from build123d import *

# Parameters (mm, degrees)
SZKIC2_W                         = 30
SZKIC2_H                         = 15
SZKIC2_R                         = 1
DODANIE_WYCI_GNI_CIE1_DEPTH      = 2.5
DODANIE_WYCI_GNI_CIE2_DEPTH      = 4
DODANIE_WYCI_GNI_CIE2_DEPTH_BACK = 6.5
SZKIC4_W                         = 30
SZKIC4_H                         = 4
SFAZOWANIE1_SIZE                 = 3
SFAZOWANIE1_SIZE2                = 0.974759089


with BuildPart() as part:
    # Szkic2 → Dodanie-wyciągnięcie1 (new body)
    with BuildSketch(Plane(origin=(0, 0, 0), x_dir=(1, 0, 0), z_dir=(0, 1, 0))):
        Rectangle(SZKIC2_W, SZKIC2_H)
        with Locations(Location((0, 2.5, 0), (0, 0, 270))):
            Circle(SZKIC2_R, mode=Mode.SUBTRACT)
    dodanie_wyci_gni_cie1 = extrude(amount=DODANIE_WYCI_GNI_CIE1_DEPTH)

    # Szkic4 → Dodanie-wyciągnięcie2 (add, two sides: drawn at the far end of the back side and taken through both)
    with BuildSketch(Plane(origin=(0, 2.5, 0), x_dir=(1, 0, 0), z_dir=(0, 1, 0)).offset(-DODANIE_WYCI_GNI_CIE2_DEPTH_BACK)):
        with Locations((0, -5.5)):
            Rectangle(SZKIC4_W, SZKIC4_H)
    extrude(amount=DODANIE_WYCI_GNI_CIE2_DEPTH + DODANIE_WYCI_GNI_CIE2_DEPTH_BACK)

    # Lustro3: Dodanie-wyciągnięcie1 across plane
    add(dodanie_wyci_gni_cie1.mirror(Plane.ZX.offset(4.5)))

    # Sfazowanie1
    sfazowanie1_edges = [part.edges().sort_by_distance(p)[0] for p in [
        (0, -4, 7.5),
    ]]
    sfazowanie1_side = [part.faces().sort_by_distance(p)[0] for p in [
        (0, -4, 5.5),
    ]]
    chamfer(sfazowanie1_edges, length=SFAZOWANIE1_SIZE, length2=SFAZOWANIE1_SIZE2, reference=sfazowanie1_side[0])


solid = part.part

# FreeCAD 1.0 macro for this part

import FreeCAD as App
import Part
import Sketcher
Q = App.Units.Quantity


def edges_at(feature, points):
    """Names of the edges that pass closest to the given points."""
    edges = feature.Shape.Edges
    near = lambda p: min(range(len(edges)), key=lambda i: edges[i].distToShape(Part.Vertex(*p))[0])
    return sorted({f"Edge{near(p) + 1}" for p in points})

doc = App.newDocument("Part")
body = doc.addObject("PartDesign::Body", "Body")

# Sketch on XZ plane
sketch1 = body.newObject("Sketcher::SketchObject", "Sketch")
sketch1.AttachmentSupport = (doc.getObject("XZ_Plane"), [""])
sketch1.MapMode = "FlatFace"
sketch1.addGeometry([
    Part.LineSegment(App.Vector(-15, -7.5, 0), App.Vector(-15, 7.5, 0)),  # 0
    Part.LineSegment(App.Vector(-15, 7.5, 0), App.Vector(15, 7.5, 0)),  # 1
    Part.LineSegment(App.Vector(15, 7.5, 0), App.Vector(15, -7.5, 0)),  # 2
    Part.LineSegment(App.Vector(15, -7.5, 0), App.Vector(-15, -7.5, 0)),  # 3
    Part.Circle(App.Vector(0, -2.5, 0), App.Vector(0, 0, 1), 1),  # 4
], False)
sketch1.addConstraint([
    Sketcher.Constraint("Coincident", 0, 2, 1, 1),
    Sketcher.Constraint("Coincident", 1, 2, 2, 1),
    Sketcher.Constraint("Coincident", 2, 2, 3, 1),
    Sketcher.Constraint("Coincident", 3, 2, 0, 1),
    Sketcher.Constraint("Vertical", 0),
    Sketcher.Constraint("Horizontal", 1),
    Sketcher.Constraint("Vertical", 2),
    Sketcher.Constraint("Horizontal", 3),
    Sketcher.Constraint("Symmetric", 0, 2, 2, 2, -1, 1),
    Sketcher.Constraint("PointOnObject", 4, 3, -2),
    Sketcher.Constraint("Diameter", 4, Q("2 mm")),
    Sketcher.Constraint("DistanceX", 1, 1, 1, 2, Q("30 mm")),
    Sketcher.Constraint("DistanceY", 0, 1, 0, 2, Q("15 mm")),
    Sketcher.Constraint("DistanceY", 4, 3, 0, 2, Q("10 mm")),
])
pad1 = body.newObject("PartDesign::Pad", "Pad")
pad1.Profile = sketch1
pad1.Length = 2.5
pad1.Reversed = True

# Sketch on XZ plane
sketch2 = body.newObject("Sketcher::SketchObject", "Sketch001")
sketch2.AttachmentSupport = (doc.getObject("XZ_Plane"), [""])
sketch2.MapMode = "FlatFace"
sketch2.AttachmentOffset = App.Placement(App.Vector(0, 0, -2.5), App.Rotation())
sketch2.addGeometry([
    Part.LineSegment(App.Vector(-15, 3.5, 0), App.Vector(-15, 7.5, 0)),
    Part.LineSegment(App.Vector(-15, 7.5, 0), App.Vector(15, 7.5, 0)),
    Part.LineSegment(App.Vector(15, 7.5, 0), App.Vector(15, 3.5, 0)),
    Part.LineSegment(App.Vector(15, 3.5, 0), App.Vector(-15, 3.5, 0)),
], False)
sketch2.addConstraint([
    Sketcher.Constraint("Coincident", 0, 2, 1, 1),
    Sketcher.Constraint("Coincident", 1, 2, 2, 1),
    Sketcher.Constraint("Coincident", 2, 2, 3, 1),
    Sketcher.Constraint("Coincident", 3, 2, 0, 1),
    Sketcher.Constraint("Vertical", 0),
    Sketcher.Constraint("Horizontal", 1),
    Sketcher.Constraint("Vertical", 2),
    Sketcher.Constraint("Horizontal", 3),
    Sketcher.Constraint("DistanceX", 1, 1, 1, 2, Q("30 mm")),
    Sketcher.Constraint("DistanceY", 0, 1, 0, 2, Q("4 mm")),
    Sketcher.Constraint("DistanceX", 0, 2, -1, 1, Q("15 mm")),
    Sketcher.Constraint("DistanceY", -1, 1, 0, 2, Q("7.5 mm")),
])
pad2 = body.newObject("PartDesign::Pad", "Pad001")
pad2.Profile = sketch2
pad2.Type = "TwoLengths"
pad2.Length = 4
pad2.Length2 = 6.5
pad2.Reversed = True
doc.recompute()

datumplane = body.newObject("PartDesign::Plane", "DatumPlane")
datumplane.AttachmentSupport = (doc.getObject("XZ_Plane"), [""])
datumplane.MapMode = "FlatFace"
datumplane.AttachmentOffset = App.Placement(App.Vector(0, 0, -4.5), App.Rotation())
mirrored = body.newObject("PartDesign::Mirrored", "Mirrored")
mirrored.Originals = [pad1]
mirrored.MirrorPlane = (datumplane, [""])
body.Tip = mirrored
doc.recompute()

chamfer = body.newObject("PartDesign::Chamfer", "Chamfer")
chamfer.Base = (mirrored, edges_at(mirrored, [(0, -4, 7.5)]))
chamfer.ChamferType = "Two distances"
chamfer.Size = 3
chamfer.Size2 = 0.974759

doc.recompute()
